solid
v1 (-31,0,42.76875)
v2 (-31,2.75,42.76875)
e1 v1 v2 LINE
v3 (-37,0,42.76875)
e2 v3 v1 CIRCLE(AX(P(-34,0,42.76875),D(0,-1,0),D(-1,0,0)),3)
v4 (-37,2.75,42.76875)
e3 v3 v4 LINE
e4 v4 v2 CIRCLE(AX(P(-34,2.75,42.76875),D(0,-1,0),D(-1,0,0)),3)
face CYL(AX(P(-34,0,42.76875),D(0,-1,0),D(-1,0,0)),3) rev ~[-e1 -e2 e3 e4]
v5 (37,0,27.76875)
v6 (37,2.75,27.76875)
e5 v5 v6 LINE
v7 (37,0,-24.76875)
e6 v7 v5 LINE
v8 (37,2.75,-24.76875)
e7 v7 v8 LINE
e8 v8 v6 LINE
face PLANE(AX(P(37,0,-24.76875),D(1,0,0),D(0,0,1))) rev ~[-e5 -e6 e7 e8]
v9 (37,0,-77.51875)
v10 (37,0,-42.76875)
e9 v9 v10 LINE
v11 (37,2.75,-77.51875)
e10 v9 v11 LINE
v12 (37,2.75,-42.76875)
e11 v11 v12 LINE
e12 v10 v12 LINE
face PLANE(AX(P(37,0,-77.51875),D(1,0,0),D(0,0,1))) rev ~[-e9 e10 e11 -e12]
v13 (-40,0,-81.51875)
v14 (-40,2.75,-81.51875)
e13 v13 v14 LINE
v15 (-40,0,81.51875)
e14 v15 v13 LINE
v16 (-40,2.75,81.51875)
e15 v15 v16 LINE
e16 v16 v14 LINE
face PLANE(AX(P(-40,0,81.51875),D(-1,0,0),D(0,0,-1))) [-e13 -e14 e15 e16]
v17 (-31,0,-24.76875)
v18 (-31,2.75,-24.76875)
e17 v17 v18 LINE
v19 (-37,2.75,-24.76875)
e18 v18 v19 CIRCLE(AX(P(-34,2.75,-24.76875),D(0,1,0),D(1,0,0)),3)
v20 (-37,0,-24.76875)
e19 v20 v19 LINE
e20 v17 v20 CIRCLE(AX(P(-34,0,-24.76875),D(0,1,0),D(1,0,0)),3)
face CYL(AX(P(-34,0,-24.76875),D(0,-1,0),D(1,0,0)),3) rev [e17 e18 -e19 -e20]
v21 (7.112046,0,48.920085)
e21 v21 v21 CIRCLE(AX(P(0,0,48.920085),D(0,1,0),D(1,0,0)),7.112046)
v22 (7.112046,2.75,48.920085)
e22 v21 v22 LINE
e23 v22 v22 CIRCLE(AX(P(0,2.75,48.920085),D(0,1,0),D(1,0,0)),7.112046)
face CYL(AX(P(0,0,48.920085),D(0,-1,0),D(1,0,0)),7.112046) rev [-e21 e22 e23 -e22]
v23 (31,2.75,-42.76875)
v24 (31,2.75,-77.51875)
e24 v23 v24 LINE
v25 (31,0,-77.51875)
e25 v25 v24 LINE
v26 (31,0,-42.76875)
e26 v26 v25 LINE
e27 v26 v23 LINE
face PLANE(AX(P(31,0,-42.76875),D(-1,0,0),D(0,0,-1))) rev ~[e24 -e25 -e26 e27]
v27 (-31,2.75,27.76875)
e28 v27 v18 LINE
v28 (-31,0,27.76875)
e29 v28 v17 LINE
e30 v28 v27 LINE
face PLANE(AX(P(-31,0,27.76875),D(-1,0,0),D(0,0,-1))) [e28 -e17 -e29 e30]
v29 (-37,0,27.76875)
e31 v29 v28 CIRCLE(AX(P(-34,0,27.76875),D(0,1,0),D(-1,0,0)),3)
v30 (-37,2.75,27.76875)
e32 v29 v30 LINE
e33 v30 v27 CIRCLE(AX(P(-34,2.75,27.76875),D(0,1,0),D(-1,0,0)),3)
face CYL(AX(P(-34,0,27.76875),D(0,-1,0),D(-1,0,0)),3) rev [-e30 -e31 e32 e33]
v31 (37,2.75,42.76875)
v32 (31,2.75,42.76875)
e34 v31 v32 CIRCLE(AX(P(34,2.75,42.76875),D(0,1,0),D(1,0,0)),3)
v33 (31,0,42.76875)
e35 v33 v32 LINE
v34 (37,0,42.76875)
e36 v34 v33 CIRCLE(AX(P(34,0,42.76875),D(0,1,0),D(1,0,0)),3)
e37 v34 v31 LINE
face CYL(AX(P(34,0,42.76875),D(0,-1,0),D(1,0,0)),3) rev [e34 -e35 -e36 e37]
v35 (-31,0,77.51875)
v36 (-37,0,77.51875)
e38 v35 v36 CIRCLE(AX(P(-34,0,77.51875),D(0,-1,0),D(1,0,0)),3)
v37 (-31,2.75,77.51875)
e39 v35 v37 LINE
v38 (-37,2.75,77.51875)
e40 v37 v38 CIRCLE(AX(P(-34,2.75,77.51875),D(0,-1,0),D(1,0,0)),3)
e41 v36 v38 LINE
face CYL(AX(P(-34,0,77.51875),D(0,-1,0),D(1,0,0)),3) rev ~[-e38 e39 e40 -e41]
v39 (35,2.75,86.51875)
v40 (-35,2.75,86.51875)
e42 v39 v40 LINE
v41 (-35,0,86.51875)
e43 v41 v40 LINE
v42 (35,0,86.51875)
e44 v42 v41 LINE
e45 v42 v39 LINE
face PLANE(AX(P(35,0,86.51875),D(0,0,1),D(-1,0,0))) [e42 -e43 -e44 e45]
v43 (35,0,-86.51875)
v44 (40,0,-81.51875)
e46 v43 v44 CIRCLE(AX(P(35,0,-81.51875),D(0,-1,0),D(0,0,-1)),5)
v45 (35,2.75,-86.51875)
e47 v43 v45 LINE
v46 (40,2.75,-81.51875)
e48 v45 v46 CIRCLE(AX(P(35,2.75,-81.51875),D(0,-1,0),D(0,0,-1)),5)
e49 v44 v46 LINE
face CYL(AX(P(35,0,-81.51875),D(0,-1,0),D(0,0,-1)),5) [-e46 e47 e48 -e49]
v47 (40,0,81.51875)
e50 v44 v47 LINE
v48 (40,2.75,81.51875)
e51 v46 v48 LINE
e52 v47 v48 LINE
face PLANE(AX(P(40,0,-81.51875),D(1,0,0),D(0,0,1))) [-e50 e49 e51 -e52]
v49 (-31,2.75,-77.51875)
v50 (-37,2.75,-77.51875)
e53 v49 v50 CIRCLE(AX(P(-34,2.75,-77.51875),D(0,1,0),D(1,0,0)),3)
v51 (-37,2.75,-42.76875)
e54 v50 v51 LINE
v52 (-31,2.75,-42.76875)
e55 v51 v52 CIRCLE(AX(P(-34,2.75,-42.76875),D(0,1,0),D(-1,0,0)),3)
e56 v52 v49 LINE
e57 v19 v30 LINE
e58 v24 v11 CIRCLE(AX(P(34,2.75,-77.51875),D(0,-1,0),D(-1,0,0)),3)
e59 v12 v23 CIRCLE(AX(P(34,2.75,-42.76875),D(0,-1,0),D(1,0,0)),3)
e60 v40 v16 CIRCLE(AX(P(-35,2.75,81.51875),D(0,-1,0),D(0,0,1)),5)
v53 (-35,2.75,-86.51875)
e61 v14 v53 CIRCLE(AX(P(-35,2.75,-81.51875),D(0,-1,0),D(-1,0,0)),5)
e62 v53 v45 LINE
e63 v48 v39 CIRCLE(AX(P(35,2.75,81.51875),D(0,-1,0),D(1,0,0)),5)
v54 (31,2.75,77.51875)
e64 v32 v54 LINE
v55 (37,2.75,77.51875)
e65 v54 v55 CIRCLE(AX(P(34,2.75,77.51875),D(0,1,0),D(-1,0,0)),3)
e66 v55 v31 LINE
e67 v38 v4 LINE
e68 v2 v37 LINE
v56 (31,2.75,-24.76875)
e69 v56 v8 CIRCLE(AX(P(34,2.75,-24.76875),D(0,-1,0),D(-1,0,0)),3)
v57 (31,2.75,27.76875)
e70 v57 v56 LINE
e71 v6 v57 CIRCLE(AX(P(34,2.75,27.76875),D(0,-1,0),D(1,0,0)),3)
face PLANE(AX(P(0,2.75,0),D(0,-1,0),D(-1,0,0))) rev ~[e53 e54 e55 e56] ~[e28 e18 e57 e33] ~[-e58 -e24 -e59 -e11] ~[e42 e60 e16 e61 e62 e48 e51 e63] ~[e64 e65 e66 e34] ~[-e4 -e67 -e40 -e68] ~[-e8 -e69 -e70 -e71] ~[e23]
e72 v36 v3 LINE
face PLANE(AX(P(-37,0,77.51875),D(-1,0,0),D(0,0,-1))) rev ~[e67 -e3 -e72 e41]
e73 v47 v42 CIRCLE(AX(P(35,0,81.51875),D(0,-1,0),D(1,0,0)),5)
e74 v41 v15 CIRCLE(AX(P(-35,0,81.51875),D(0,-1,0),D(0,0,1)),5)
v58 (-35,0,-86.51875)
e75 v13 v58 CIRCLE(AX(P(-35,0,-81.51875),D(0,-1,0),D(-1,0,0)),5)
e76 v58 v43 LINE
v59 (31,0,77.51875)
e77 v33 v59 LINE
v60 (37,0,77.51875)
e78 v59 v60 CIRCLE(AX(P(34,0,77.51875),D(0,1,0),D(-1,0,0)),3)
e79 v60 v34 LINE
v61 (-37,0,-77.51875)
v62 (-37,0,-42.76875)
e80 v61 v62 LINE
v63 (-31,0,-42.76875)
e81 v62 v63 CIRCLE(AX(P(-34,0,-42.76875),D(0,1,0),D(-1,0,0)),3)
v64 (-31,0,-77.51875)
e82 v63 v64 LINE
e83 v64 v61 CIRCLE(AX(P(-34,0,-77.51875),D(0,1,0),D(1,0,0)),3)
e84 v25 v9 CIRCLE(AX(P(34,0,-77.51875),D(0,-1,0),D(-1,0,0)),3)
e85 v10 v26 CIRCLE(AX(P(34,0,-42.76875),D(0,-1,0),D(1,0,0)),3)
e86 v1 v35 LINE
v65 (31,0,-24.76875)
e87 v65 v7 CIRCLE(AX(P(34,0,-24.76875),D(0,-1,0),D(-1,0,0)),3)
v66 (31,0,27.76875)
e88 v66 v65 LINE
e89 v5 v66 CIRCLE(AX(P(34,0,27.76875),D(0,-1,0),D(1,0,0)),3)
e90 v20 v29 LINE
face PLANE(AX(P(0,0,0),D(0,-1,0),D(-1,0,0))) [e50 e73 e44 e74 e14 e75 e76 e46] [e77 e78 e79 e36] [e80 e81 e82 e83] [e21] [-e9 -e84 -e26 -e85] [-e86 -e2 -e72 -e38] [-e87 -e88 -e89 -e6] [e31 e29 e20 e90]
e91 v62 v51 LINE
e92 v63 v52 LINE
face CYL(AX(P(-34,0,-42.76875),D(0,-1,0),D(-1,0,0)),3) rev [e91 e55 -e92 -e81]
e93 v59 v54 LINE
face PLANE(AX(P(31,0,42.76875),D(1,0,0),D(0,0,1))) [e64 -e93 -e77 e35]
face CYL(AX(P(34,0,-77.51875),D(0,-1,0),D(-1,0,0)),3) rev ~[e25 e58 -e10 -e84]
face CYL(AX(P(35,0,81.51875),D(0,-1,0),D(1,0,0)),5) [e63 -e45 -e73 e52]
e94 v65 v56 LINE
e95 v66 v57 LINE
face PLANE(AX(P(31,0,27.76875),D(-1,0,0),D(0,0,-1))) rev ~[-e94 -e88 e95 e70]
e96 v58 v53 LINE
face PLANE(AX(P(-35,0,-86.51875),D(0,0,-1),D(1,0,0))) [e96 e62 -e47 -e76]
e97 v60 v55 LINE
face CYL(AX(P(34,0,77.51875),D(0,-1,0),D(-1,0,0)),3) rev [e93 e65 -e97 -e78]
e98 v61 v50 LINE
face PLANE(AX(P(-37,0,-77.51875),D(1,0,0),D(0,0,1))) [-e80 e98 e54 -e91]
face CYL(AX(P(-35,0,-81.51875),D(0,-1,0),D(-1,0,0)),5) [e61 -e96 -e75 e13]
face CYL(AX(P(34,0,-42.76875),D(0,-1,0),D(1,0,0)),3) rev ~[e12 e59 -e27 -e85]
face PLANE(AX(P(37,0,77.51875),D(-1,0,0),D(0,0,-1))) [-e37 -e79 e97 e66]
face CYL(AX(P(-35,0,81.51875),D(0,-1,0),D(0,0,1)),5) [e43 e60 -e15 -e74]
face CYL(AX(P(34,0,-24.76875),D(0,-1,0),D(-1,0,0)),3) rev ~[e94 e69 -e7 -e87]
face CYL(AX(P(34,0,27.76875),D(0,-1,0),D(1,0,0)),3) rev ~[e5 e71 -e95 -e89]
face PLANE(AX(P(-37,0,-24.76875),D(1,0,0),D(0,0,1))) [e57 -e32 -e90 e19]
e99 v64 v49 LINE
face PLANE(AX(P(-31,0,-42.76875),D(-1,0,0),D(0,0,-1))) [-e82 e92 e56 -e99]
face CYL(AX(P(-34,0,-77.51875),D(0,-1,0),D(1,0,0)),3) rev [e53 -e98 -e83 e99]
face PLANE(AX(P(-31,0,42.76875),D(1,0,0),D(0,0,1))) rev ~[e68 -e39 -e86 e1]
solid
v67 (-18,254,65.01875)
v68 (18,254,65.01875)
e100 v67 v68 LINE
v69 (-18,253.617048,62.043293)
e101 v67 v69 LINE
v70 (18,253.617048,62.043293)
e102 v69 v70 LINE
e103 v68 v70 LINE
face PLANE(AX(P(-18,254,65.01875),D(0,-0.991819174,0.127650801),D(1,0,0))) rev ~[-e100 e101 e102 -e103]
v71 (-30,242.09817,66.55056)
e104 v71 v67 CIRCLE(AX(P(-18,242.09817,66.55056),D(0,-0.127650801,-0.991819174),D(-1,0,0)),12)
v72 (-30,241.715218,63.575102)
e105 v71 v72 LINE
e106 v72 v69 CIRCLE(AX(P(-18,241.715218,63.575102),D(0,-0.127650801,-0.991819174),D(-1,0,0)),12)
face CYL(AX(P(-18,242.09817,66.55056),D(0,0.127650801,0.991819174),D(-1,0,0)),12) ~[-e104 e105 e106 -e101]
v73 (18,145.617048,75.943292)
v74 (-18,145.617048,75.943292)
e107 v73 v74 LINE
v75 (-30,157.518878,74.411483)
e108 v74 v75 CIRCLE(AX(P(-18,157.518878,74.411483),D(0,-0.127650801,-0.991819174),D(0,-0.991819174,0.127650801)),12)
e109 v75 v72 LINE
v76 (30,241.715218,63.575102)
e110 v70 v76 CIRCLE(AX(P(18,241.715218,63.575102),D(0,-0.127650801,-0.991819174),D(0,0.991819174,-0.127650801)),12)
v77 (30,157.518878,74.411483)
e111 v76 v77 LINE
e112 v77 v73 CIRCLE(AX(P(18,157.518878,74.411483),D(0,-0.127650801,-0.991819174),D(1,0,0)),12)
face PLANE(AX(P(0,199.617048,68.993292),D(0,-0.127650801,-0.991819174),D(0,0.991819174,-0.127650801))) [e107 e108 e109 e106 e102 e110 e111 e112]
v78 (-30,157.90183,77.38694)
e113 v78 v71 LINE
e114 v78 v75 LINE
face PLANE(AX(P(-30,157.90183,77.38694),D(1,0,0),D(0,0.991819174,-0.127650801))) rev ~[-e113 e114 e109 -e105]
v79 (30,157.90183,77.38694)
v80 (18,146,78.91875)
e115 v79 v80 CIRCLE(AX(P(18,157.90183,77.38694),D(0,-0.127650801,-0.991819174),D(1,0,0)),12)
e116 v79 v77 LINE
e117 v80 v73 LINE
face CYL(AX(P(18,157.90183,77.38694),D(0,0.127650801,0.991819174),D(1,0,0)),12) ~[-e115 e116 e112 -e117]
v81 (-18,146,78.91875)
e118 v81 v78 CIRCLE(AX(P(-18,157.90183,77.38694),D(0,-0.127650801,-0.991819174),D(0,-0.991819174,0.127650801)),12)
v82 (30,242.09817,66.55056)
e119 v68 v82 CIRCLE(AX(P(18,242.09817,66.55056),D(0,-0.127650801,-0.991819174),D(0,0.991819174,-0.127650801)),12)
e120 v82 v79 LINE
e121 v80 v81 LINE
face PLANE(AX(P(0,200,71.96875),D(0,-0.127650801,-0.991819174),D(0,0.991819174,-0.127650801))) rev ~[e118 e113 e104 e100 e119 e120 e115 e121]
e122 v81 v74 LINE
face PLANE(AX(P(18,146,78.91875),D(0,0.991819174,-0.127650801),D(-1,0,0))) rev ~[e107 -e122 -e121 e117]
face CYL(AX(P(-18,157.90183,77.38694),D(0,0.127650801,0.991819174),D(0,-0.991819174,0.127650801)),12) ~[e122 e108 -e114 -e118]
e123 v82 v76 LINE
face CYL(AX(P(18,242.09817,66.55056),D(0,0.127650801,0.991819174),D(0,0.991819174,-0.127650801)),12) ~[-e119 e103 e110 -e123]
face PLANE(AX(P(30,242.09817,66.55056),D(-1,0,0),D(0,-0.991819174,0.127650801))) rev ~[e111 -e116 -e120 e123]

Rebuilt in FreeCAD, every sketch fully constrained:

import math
import FreeCAD as App
import Part
import Sketcher
from FreeCAD import Vector

doc = App.newDocument("Part")
params = doc.addObject("Spreadsheet::Sheet", "Params")
for row, (alias, value) in enumerate([
    ("sketch1_radius", "5 mm"),
    ("sketch1_radius2", "3 mm"),
    ("sketch1_width", "70 mm"),
    ("sketch1_height", "34.75 mm"),
    ("pad1_length", "2.75 mm"),
    ("sketch2_radius", "12 mm"),
    ("sketch2_height", "36 mm"),
    ("pad2_length", "3 mm"),
], start=1):
    params.set(f"A{row}", alias)
    params.set(f"B{row}", "=" + value)
    params.setAlias(f"B{row}", alias)

body = doc.addObject("PartDesign::Body", "Body")

sketch1 = body.newObject("Sketcher::SketchObject", "Sketch")
sketch1.AttachmentSupport = (doc.getObject("XZ_Plane"), [""])
sketch1.MapMode = "FlatFace"
sketch1.addGeometry([
    Part.LineSegment(Vector(35, -86.5, 0), Vector(-35, -86.5, 0)),
    Part.ArcOfCircle(Part.Circle(Vector(-35, -81.5, 0), Vector(0, 0, 1), 5), math.radians(180), math.radians(270)),
    Part.LineSegment(Vector(-40, -81.5, 0), Vector(-40, 81.5, 0)),
    Part.ArcOfCircle(Part.Circle(Vector(-35, 81.5, 0), Vector(0, 0, 1), 5), math.radians(90), math.radians(180)),
    Part.LineSegment(Vector(-35, 86.5, 0), Vector(35, 86.5, 0)),
    Part.ArcOfCircle(Part.Circle(Vector(35, 81.5, 0), Vector(0, 0, 1), 5), math.radians(0), math.radians(90)),
    Part.LineSegment(Vector(40, 81.5, 0), Vector(40, -81.5, 0)),
    Part.ArcOfCircle(Part.Circle(Vector(35, -81.5, 0), Vector(0, 0, 1), 5), math.radians(-90), math.radians(0)),
    Part.ArcOfCircle(Part.Circle(Vector(34, 77.5, 0), Vector(0, 0, 1), 3), math.radians(0), math.radians(180)),
    Part.LineSegment(Vector(31, 77.5, 0), Vector(31, 42.8, 0)),
    Part.ArcOfCircle(Part.Circle(Vector(34, 42.8, 0), Vector(0, 0, 1), 3), math.radians(180), math.radians(360)),
    Part.LineSegment(Vector(37, 42.8, 0), Vector(37, 77.5, 0)),
    Part.LineSegment(Vector(37, -24.8, 0), Vector(37, 27.8, 0)),
    Part.ArcOfCircle(Part.Circle(Vector(34, 27.8, 0), Vector(0, 0, 1), 3), math.radians(0), math.radians(180)),
    Part.LineSegment(Vector(31, 27.8, 0), Vector(31, -24.8, 0)),
    Part.ArcOfCircle(Part.Circle(Vector(34, -24.8, 0), Vector(0, 0, 1), 3), math.radians(180), math.radians(360)),
    Part.Circle(Vector(0, 48.9, 0), Vector(0, 0, 1), 7.1),
    Part.LineSegment(Vector(-37, 77.5, 0), Vector(-37, 42.8, 0)),
    Part.ArcOfCircle(Part.Circle(Vector(-34, 42.8, 0), Vector(0, 0, 1), 3), math.radians(180), math.radians(360)),
    Part.LineSegment(Vector(-31, 42.8, 0), Vector(-31, 77.5, 0)),
    Part.ArcOfCircle(Part.Circle(Vector(-34, 77.5, 0), Vector(0, 0, 1), 3), math.radians(0), math.radians(180)),
    Part.ArcOfCircle(Part.Circle(Vector(-34, -24.8, 0), Vector(0, 0, 1), 3), math.radians(180), math.radians(360)),
    Part.LineSegment(Vector(-31, -24.8, 0), Vector(-31, 27.8, 0)),
    Part.ArcOfCircle(Part.Circle(Vector(-34, 27.8, 0), Vector(0, 0, 1), 3), math.radians(0), math.radians(180)),
    Part.LineSegment(Vector(-37, 27.8, 0), Vector(-37, -24.8, 0)),
    Part.LineSegment(Vector(37, -77.5, 0), Vector(37, -42.8, 0)),
    Part.ArcOfCircle(Part.Circle(Vector(34, -42.8, 0), Vector(0, 0, 1), 3), math.radians(0), math.radians(180)),
    Part.LineSegment(Vector(31, -42.8, 0), Vector(31, -77.5, 0)),
    Part.ArcOfCircle(Part.Circle(Vector(34, -77.5, 0), Vector(0, 0, 1), 3), math.radians(180), math.radians(360)),
    Part.ArcOfCircle(Part.Circle(Vector(-34, -77.5, 0), Vector(0, 0, 1), 3), math.radians(180), math.radians(360)),
    Part.LineSegment(Vector(-31, -77.5, 0), Vector(-31, -42.8, 0)),
    Part.ArcOfCircle(Part.Circle(Vector(-34, -42.8, 0), Vector(0, 0, 1), 3), math.radians(0), math.radians(180)),
    Part.LineSegment(Vector(-37, -42.8, 0), Vector(-37, -77.5, 0)),
], False)
sketch1.addConstraint([
    Sketcher.Constraint("Tangent", 0, 2, 1, 2),
    Sketcher.Constraint("Tangent", 1, 1, 2, 1),
    Sketcher.Constraint("Tangent", 2, 2, 3, 2),
    Sketcher.Constraint("Tangent", 3, 1, 4, 1),
    Sketcher.Constraint("Tangent", 4, 2, 5, 2),
    Sketcher.Constraint("Tangent", 5, 1, 6, 1),
    Sketcher.Constraint("Tangent", 6, 2, 7, 2),
    Sketcher.Constraint("Tangent", 7, 1, 0, 1),
    Sketcher.Constraint("Tangent", 8, 2, 9, 1),
    Sketcher.Constraint("Tangent", 9, 2, 10, 1),
    Sketcher.Constraint("Tangent", 10, 2, 11, 1),
    Sketcher.Constraint("Tangent", 11, 2, 8, 1),
    Sketcher.Constraint("Tangent", 12, 2, 13, 1),
    Sketcher.Constraint("Tangent", 13, 2, 14, 1),
    Sketcher.Constraint("Tangent", 14, 2, 15, 1),
    Sketcher.Constraint("Tangent", 15, 2, 12, 1),
    Sketcher.Constraint("Tangent", 17, 2, 18, 1),
    Sketcher.Constraint("Tangent", 18, 2, 19, 1),
    Sketcher.Constraint("Tangent", 19, 2, 20, 1),
    Sketcher.Constraint("Tangent", 20, 2, 17, 1),
    Sketcher.Constraint("Tangent", 21, 2, 22, 1),
    Sketcher.Constraint("Tangent", 22, 2, 23, 1),
    Sketcher.Constraint("Tangent", 23, 2, 24, 1),
    Sketcher.Constraint("Tangent", 24, 2, 21, 1),
    Sketcher.Constraint("Tangent", 25, 2, 26, 1),
    Sketcher.Constraint("Tangent", 26, 2, 27, 1),
    Sketcher.Constraint("Tangent", 27, 2, 28, 1),
    Sketcher.Constraint("Tangent", 28, 2, 25, 1),
    Sketcher.Constraint("Tangent", 29, 2, 30, 1),
    Sketcher.Constraint("Tangent", 30, 2, 31, 1),
    Sketcher.Constraint("Tangent", 31, 2, 32, 1),
    Sketcher.Constraint("Tangent", 32, 2, 29, 1),
    Sketcher.Constraint("Horizontal", 0),
    Sketcher.Constraint("Vertical", 2),
    Sketcher.Constraint("Horizontal", 4),
    Sketcher.Constraint("Vertical", 6),
    Sketcher.Constraint("Vertical", 9),
    Sketcher.Constraint("Vertical", 11),
    Sketcher.Constraint("Vertical", 12),
    Sketcher.Constraint("Vertical", 14),
    Sketcher.Constraint("Vertical", 17),
    Sketcher.Constraint("Vertical", 19),
    Sketcher.Constraint("Vertical", 22),
    Sketcher.Constraint("Vertical", 24),
    Sketcher.Constraint("Vertical", 25),
    Sketcher.Constraint("Vertical", 27),
    Sketcher.Constraint("Vertical", 30),
    Sketcher.Constraint("Vertical", 32),
    Sketcher.Constraint("Equal", 1, 3),
    Sketcher.Constraint("Equal", 3, 5),
    Sketcher.Constraint("Equal", 5, 7),
    Sketcher.Constraint("Equal", 10, 13),
    Sketcher.Constraint("Equal", 15, 18),
    Sketcher.Constraint("Equal", 20, 21),
    Sketcher.Constraint("Equal", 23, 26),
    Sketcher.Constraint("Equal", 28, 29),
    Sketcher.Constraint("Symmetric", 1, 3, 5, 3, -1, 1),
    Sketcher.Constraint("Symmetric", 18, 3, 26, 3, -1, 1),
    Sketcher.Constraint("Symmetric", 8, 3, 29, 3, -1, 1),
    Sketcher.Constraint("Symmetric", 10, 3, 18, 3, -2),
    Sketcher.Constraint("Symmetric", 15, 3, 21, 3, -2),
    Sketcher.Constraint("PointOnObject", 16, 3, -2),
    Sketcher.Constraint("Horizontal", 8, 3, 20, 3),
    Sketcher.Constraint("Horizontal", 13, 3, 23, 3),
    Sketcher.Constraint("Horizontal", 28, 3, 29, 3),
    Sketcher.Constraint("Horizontal", 26, 3, 31, 3),
    Sketcher.Constraint("Vertical", 10, 3, 13, 3),
    Sketcher.Constraint("Radius", 1, 5.0),
    Sketcher.Constraint("Radius", 8, 3.0),
    Sketcher.Constraint("DistanceX", 0, 2, 0, 1, 70.0),
    Sketcher.Constraint("DistanceX", -1, 1, 8, 3, 34.0),
    Sketcher.Constraint("DistanceY", 8, 3, 5, 3, 4.0),
    Sketcher.Constraint("DistanceY", 13, 3, 10, 3, 15.0),
    Sketcher.Constraint("DistanceY", 26, 3, 15, 3, 18.0),
    Sketcher.Constraint("DistanceY", 9, 2, 9, 1, 34.75),
    Sketcher.Constraint("Diameter", 16, 14.224091),
    Sketcher.Constraint("DistanceY", 2, 1, 2, 2, 163.0375),
    Sketcher.Constraint("DistanceY", -1, 1, 16, 3, 48.920085),
])
sketch1.setExpression("Constraints[67]", "Params.sketch1_radius")
sketch1.setExpression("Constraints[68]", "Params.sketch1_radius2")
sketch1.setExpression("Constraints[69]", "Params.sketch1_width")
sketch1.setExpression("Constraints[74]", "Params.sketch1_height")
pad1 = body.newObject("PartDesign::Pad", "Pad")
pad1.Profile = sketch1
pad1.setExpression("Length", "Params.pad1_length")
pad1.Reversed = True
body2 = doc.addObject("PartDesign::Body", "Body001")

sketch2 = body2.newObject("Sketcher::SketchObject", "Sketch001")
sketch2.Placement = App.Placement(Vector(0, 12.370658, 96.117341), App.Rotation(Vector(0, -0.991819174, 0.127650801), Vector(1.000000001, 0, 0), Vector(0, 0.127650801, 0.991819174), "ZXY"))
sketch2.addGeometry([
    Part.LineSegment(Vector(-147, 30, 0), Vector(-232, 30, 0)),
    Part.ArcOfCircle(Part.Circle(Vector(-232, 18, 0), Vector(0, 0, 1), 12), math.radians(90), math.radians(180)),
    Part.LineSegment(Vector(-244, 18, 0), Vector(-244, -18, 0)),
    Part.ArcOfCircle(Part.Circle(Vector(-232, -18, 0), Vector(0, 0, 1), 12), math.radians(-180), math.radians(-90)),
    Part.LineSegment(Vector(-232, -30, 0), Vector(-147, -30, 0)),
    Part.ArcOfCircle(Part.Circle(Vector(-147, -18, 0), Vector(0, 0, 1), 12), math.radians(-90), math.radians(0)),
    Part.LineSegment(Vector(-135, -18, 0), Vector(-135, 18, 0)),
    Part.ArcOfCircle(Part.Circle(Vector(-147, 18, 0), Vector(0, 0, 1), 12), math.radians(0), math.radians(90)),
], False)
sketch2.addConstraint([
    Sketcher.Constraint("Tangent", 0, 2, 1, 1),
    Sketcher.Constraint("Tangent", 1, 2, 2, 1),
    Sketcher.Constraint("Tangent", 2, 2, 3, 1),
    Sketcher.Constraint("Tangent", 3, 2, 4, 1),
    Sketcher.Constraint("Tangent", 4, 2, 5, 1),
    Sketcher.Constraint("Tangent", 5, 2, 6, 1),
    Sketcher.Constraint("Tangent", 6, 2, 7, 1),
    Sketcher.Constraint("Tangent", 7, 2, 0, 1),
    Sketcher.Constraint("Horizontal", 0),
    Sketcher.Constraint("Vertical", 2),
    Sketcher.Constraint("Horizontal", 4),
    Sketcher.Constraint("Vertical", 6),
    Sketcher.Constraint("Equal", 1, 3),
    Sketcher.Constraint("Equal", 3, 5),
    Sketcher.Constraint("Equal", 5, 7),
    Sketcher.Constraint("Radius", 1, 12.0),
    Sketcher.Constraint("DistanceY", 2, 2, 2, 1, 36.0),
    Sketcher.Constraint("DistanceY", -1, 1, 1, 3, 18.0),
    Sketcher.Constraint("DistanceX", 0, 2, 0, 1, 84.890817),
    Sketcher.Constraint("DistanceX", 1, 3, -1, 1, 231.622375),
])
sketch2.setExpression("Constraints[15]", "Params.sketch2_radius")
sketch2.setExpression("Constraints[16]", "Params.sketch2_height")
pad2 = body2.newObject("PartDesign::Pad", "Pad001")
pad2.Profile = sketch2
pad2.setExpression("Length", "Params.pad2_length")
pad2.Reversed = True

doc.recompute()
